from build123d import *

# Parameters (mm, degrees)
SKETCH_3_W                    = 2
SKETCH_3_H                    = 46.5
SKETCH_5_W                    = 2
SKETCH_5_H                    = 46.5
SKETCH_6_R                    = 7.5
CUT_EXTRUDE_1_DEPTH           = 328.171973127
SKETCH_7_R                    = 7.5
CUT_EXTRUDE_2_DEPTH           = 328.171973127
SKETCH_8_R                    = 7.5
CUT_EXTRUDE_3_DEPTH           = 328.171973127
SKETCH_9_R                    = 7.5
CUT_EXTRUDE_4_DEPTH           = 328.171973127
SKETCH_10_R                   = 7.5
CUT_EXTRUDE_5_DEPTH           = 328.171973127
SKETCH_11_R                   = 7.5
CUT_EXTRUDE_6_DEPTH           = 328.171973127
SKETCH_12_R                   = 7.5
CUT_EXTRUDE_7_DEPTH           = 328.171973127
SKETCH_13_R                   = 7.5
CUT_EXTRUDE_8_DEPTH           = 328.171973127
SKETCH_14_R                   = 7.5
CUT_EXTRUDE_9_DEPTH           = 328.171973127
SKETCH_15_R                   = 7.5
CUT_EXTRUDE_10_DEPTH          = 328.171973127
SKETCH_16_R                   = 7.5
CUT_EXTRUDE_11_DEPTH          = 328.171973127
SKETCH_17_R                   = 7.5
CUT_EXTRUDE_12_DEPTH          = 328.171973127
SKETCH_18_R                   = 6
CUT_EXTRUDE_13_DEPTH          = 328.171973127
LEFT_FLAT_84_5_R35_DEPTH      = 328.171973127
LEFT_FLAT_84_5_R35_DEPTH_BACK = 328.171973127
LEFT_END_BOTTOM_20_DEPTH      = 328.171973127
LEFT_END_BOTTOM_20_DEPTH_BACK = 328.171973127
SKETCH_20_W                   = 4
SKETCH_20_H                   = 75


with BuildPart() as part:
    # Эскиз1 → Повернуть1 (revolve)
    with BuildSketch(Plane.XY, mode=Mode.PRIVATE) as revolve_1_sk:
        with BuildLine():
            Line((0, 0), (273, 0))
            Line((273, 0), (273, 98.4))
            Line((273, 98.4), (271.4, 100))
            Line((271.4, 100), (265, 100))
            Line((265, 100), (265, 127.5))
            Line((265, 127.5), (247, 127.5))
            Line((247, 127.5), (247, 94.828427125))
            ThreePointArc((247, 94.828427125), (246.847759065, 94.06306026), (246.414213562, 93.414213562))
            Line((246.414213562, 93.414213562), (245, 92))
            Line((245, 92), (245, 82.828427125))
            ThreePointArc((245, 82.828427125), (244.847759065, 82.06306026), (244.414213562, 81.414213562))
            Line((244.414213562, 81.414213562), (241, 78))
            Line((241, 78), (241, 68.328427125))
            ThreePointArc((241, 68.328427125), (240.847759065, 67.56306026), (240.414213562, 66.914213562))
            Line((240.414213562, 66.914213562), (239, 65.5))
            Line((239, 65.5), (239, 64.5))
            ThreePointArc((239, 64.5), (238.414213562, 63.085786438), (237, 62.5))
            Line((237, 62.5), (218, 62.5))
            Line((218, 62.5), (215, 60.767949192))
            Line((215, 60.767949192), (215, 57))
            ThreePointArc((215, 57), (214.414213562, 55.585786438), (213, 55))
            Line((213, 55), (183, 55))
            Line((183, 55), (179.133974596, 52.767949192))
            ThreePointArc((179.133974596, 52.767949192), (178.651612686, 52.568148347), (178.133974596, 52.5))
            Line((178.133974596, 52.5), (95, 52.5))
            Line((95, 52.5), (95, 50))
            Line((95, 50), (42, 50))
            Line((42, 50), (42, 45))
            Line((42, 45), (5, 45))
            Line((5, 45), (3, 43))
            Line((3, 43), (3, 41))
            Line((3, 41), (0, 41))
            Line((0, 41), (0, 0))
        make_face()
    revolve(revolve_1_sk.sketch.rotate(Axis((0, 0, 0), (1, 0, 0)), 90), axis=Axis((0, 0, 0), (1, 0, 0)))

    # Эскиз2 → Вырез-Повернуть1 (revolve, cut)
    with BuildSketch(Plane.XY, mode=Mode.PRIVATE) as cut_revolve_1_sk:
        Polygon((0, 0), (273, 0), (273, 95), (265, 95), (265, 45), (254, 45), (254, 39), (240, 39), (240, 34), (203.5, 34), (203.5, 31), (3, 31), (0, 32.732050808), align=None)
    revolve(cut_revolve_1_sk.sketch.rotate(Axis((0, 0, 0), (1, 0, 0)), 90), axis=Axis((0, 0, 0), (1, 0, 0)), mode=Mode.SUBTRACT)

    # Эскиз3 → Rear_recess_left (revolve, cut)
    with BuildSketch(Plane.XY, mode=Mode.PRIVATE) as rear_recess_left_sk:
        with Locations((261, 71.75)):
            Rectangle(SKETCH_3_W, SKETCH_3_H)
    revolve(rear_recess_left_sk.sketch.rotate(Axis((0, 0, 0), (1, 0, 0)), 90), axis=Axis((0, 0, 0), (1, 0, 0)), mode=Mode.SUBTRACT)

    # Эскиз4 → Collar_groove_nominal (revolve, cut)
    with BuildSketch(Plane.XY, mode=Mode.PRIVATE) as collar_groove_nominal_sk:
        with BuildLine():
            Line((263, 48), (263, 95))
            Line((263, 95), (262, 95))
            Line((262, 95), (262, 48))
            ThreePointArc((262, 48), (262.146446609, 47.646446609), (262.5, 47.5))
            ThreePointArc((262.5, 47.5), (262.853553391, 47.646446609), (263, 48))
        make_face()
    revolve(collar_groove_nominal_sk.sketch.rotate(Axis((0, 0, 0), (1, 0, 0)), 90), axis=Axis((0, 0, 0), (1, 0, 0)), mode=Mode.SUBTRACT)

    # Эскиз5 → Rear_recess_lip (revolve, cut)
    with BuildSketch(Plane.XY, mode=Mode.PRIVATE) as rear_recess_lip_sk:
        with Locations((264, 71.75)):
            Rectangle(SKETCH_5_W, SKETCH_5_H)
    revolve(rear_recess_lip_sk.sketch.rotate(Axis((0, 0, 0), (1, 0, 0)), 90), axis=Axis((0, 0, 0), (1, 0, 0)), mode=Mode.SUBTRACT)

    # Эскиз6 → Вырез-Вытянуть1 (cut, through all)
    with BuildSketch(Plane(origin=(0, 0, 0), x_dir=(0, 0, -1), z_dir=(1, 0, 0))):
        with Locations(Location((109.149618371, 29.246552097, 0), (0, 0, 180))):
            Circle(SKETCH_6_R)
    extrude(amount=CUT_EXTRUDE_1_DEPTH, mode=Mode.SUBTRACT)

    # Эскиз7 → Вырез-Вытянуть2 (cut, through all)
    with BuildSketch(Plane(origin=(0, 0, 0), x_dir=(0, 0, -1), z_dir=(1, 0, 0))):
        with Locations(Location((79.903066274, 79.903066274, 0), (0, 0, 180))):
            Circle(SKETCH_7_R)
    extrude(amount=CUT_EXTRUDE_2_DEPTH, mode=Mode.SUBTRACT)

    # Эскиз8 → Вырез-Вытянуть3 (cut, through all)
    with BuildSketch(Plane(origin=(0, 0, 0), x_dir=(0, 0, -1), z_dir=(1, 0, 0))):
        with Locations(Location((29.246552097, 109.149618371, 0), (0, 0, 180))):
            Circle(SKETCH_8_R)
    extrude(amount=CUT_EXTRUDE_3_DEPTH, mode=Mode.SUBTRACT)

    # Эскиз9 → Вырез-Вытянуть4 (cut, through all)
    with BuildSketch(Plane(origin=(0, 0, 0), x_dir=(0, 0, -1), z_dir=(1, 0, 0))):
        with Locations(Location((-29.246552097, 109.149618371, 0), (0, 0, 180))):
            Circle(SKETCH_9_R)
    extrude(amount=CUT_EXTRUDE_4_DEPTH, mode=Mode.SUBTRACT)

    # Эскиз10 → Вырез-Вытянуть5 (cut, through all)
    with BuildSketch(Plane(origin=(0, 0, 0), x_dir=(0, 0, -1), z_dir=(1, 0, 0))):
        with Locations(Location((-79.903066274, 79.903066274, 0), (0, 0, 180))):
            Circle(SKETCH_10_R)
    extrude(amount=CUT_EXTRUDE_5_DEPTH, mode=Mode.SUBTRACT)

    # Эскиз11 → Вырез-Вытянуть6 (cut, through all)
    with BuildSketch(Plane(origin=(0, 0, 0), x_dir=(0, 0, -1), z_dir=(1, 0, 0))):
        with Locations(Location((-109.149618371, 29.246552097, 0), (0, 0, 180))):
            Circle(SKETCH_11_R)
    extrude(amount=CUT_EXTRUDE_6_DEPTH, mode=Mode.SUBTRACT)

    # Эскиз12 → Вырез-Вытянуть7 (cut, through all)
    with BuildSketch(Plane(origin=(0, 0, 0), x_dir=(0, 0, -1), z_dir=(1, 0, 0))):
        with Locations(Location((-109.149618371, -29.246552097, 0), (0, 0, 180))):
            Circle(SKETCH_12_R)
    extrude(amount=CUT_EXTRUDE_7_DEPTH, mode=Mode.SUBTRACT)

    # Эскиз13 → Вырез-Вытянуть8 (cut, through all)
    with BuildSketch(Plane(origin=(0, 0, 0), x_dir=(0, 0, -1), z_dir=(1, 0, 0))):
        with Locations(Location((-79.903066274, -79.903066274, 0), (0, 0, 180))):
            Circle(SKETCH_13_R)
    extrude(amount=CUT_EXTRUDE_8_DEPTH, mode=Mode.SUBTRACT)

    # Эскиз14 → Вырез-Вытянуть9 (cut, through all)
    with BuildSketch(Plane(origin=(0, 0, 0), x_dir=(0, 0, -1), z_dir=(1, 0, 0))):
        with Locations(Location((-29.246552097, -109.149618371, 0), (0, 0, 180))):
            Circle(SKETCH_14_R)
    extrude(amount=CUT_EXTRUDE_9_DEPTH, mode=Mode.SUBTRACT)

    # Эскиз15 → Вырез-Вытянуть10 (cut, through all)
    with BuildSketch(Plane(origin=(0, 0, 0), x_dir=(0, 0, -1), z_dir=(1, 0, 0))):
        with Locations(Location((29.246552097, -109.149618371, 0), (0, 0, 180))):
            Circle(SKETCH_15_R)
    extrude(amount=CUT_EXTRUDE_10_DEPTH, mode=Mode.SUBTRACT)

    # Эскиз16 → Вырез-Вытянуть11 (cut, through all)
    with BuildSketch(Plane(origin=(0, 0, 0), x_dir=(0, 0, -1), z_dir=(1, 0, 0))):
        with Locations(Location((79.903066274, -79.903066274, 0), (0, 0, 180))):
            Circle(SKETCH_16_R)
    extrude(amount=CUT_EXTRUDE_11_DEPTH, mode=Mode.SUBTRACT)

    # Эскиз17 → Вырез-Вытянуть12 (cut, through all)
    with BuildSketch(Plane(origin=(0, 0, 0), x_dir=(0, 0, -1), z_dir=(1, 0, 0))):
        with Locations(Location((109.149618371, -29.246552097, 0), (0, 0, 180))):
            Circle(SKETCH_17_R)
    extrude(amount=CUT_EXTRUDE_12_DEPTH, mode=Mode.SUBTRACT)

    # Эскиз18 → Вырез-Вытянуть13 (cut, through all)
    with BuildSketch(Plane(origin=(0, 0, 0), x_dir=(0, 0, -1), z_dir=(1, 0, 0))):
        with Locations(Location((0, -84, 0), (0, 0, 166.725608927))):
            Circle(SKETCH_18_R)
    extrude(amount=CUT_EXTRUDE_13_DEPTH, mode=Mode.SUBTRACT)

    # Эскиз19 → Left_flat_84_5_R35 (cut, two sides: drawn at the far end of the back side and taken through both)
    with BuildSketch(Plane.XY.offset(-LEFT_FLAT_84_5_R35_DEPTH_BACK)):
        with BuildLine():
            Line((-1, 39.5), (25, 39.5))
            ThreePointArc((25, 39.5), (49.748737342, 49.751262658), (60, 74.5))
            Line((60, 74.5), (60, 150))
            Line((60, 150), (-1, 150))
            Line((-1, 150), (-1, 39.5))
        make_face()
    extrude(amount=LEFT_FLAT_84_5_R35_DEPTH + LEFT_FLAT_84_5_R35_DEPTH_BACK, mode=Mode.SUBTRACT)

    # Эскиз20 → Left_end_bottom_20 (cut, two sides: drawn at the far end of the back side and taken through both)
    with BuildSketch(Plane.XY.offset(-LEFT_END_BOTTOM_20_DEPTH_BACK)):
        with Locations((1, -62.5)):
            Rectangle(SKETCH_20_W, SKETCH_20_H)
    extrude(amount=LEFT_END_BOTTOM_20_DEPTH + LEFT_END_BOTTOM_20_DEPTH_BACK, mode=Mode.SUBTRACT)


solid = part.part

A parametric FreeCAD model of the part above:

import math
import FreeCAD as App
import Part
import Sketcher
from FreeCAD import Vector
Q = App.Units.Quantity

doc = App.newDocument("Part")
body = doc.addObject("PartDesign::Body", "Body")

sketch1 = doc.addObject("Sketcher::SketchObject", "Sketch")
body.addObject(sketch1)
sketch1.AttachmentSupport = (doc.XY_Plane, [""])
sketch1.MapMode = "FlatFace"
sketch1.addGeometry(Part.LineSegment(Vector(0, 0, 0), Vector(273, 0, 0)), False)
sketch1.addGeometry(Part.LineSegment(Vector(273, 0, 0), Vector(273, 98.4, 0)), False)
sketch1.addGeometry(Part.LineSegment(Vector(273, 98.4, 0), Vector(271.4, 100, 0)), False)
sketch1.addGeometry(Part.LineSegment(Vector(271.4, 100, 0), Vector(265, 100, 0)), False)
sketch1.addGeometry(Part.LineSegment(Vector(265, 100, 0), Vector(265, 127.5, 0)), False)
sketch1.addGeometry(Part.LineSegment(Vector(265, 127.5, 0), Vector(247, 127.5, 0)), False)
sketch1.addGeometry(Part.LineSegment(Vector(247, 127.5, 0), Vector(247, 94.8, 0)), False)
sketch1.addGeometry(Part.ArcOfCircle(Part.Circle(Vector(245, 94.8, 0), Vector(0, 0, 1), 2), math.radians(-45), math.radians(0)), False)
sketch1.addGeometry(Part.LineSegment(Vector(246.4, 93.4, 0), Vector(245, 92, 0)), False)
sketch1.addGeometry(Part.LineSegment(Vector(245, 92, 0), Vector(245, 82.8, 0)), False)
sketch1.addGeometry(Part.ArcOfCircle(Part.Circle(Vector(243, 82.8, 0), Vector(0, 0, 1), 2), math.radians(-45), math.radians(0)), False)
sketch1.addGeometry(Part.LineSegment(Vector(244.4, 81.4, 0), Vector(241, 78, 0)), False)
sketch1.addGeometry(Part.LineSegment(Vector(241, 78, 0), Vector(241, 68.3, 0)), False)
sketch1.addGeometry(Part.ArcOfCircle(Part.Circle(Vector(239, 68.3, 0), Vector(0, 0, 1), 2), math.radians(-45), math.radians(0)), False)
sketch1.addGeometry(Part.LineSegment(Vector(240.4, 66.9, 0), Vector(239, 65.5, 0)), False)
sketch1.addGeometry(Part.LineSegment(Vector(239, 65.5, 0), Vector(239, 64.5, 0)), False)
sketch1.addGeometry(Part.ArcOfCircle(Part.Circle(Vector(237, 64.5, 0), Vector(0, 0, 1), 2), math.radians(-90), math.radians(0)), False)
sketch1.addGeometry(Part.LineSegment(Vector(237, 62.5, 0), Vector(218, 62.5, 0)), False)
sketch1.addGeometry(Part.LineSegment(Vector(218, 62.5, 0), Vector(215, 60.8, 0)), False)
sketch1.addGeometry(Part.LineSegment(Vector(215, 60.8, 0), Vector(215, 57, 0)), False)
sketch1.addGeometry(Part.ArcOfCircle(Part.Circle(Vector(213, 57, 0), Vector(0, 0, 1), 2), math.radians(-90), math.radians(0)), False)
sketch1.addGeometry(Part.LineSegment(Vector(213, 55, 0), Vector(183, 55, 0)), False)
sketch1.addGeometry(Part.LineSegment(Vector(183, 55, 0), Vector(179.1, 52.8, 0)), False)
sketch1.addGeometry(Part.ArcOfCircle(Part.Circle(Vector(178.1, 54.5, 0), Vector(0, 0, 1), 2), math.radians(-90), math.radians(-60)), False)
sketch1.addGeometry(Part.LineSegment(Vector(178.1, 52.5, 0), Vector(95, 52.5, 0)), False)
sketch1.addGeometry(Part.LineSegment(Vector(95, 52.5, 0), Vector(95, 50, 0)), False)
sketch1.addGeometry(Part.LineSegment(Vector(95, 50, 0), Vector(42, 50, 0)), False)
sketch1.addGeometry(Part.LineSegment(Vector(42, 50, 0), Vector(42, 45, 0)), False)
sketch1.addGeometry(Part.LineSegment(Vector(42, 45, 0), Vector(5, 45, 0)), False)
sketch1.addGeometry(Part.LineSegment(Vector(5, 45, 0), Vector(3, 43, 0)), False)
sketch1.addGeometry(Part.LineSegment(Vector(3, 43, 0), Vector(3, 41, 0)), False)
sketch1.addGeometry(Part.LineSegment(Vector(3, 41, 0), Vector(0, 41, 0)), False)
sketch1.addGeometry(Part.LineSegment(Vector(0, 41, 0), Vector(0, 0, 0)), False)
sketch1.addConstraint(Sketcher.Constraint("Coincident", 0, 2, 1, 1))
sketch1.addConstraint(Sketcher.Constraint("Coincident", 1, 2, 2, 1))
sketch1.addConstraint(Sketcher.Constraint("Coincident", 2, 2, 3, 1))
sketch1.addConstraint(Sketcher.Constraint("Coincident", 3, 2, 4, 1))
sketch1.addConstraint(Sketcher.Constraint("Coincident", 4, 2, 5, 1))
sketch1.addConstraint(Sketcher.Constraint("Coincident", 5, 2, 6, 1))
sketch1.addConstraint(Sketcher.Constraint("Tangent", 6, 2, 7, 2))
sketch1.addConstraint(Sketcher.Constraint("Tangent", 7, 1, 8, 1))
sketch1.addConstraint(Sketcher.Constraint("Coincident", 8, 2, 9, 1))
sketch1.addConstraint(Sketcher.Constraint("Tangent", 9, 2, 10, 2))
sketch1.addConstraint(Sketcher.Constraint("Tangent", 10, 1, 11, 1))
sketch1.addConstraint(Sketcher.Constraint("Coincident", 11, 2, 12, 1))
sketch1.addConstraint(Sketcher.Constraint("Tangent", 12, 2, 13, 2))
sketch1.addConstraint(Sketcher.Constraint("Tangent", 13, 1, 14, 1))
sketch1.addConstraint(Sketcher.Constraint("Coincident", 14, 2, 15, 1))
sketch1.addConstraint(Sketcher.Constraint("Tangent", 15, 2, 16, 2))
sketch1.addConstraint(Sketcher.Constraint("Tangent", 16, 1, 17, 1))
sketch1.addConstraint(Sketcher.Constraint("Coincident", 17, 2, 18, 1))
sketch1.addConstraint(Sketcher.Constraint("Coincident", 18, 2, 19, 1))
sketch1.addConstraint(Sketcher.Constraint("Tangent", 19, 2, 20, 2))
sketch1.addConstraint(Sketcher.Constraint("Tangent", 20, 1, 21, 1))
sketch1.addConstraint(Sketcher.Constraint("Coincident", 21, 2, 22, 1))
sketch1.addConstraint(Sketcher.Constraint("Tangent", 22, 2, 23, 2))
sketch1.addConstraint(Sketcher.Constraint("Tangent", 23, 1, 24, 1))
sketch1.addConstraint(Sketcher.Constraint("Coincident", 24, 2, 25, 1))
sketch1.addConstraint(Sketcher.Constraint("Coincident", 25, 2, 26, 1))
sketch1.addConstraint(Sketcher.Constraint("Coincident", 26, 2, 27, 1))
sketch1.addConstraint(Sketcher.Constraint("Coincident", 27, 2, 28, 1))
sketch1.addConstraint(Sketcher.Constraint("Coincident", 28, 2, 29, 1))
sketch1.addConstraint(Sketcher.Constraint("Coincident", 29, 2, 30, 1))
sketch1.addConstraint(Sketcher.Constraint("Coincident", 30, 2, 31, 1))
sketch1.addConstraint(Sketcher.Constraint("Coincident", 31, 2, 32, 1))
sketch1.addConstraint(Sketcher.Constraint("Coincident", 32, 2, 0, 1))
sketch1.addConstraint(Sketcher.Constraint("Horizontal", 0))
sketch1.addConstraint(Sketcher.Constraint("Vertical", 1))
sketch1.addConstraint(Sketcher.Constraint("Horizontal", 3))
sketch1.addConstraint(Sketcher.Constraint("Vertical", 4))
sketch1.addConstraint(Sketcher.Constraint("Horizontal", 5))
sketch1.addConstraint(Sketcher.Constraint("Vertical", 6))
sketch1.addConstraint(Sketcher.Constraint("Vertical", 9))
sketch1.addConstraint(Sketcher.Constraint("Vertical", 12))
sketch1.addConstraint(Sketcher.Constraint("Vertical", 15))
sketch1.addConstraint(Sketcher.Constraint("Horizontal", 17))
sketch1.addConstraint(Sketcher.Constraint("Vertical", 19))
sketch1.addConstraint(Sketcher.Constraint("Horizontal", 21))
sketch1.addConstraint(Sketcher.Constraint("Horizontal", 24))
sketch1.addConstraint(Sketcher.Constraint("Vertical", 25))
sketch1.addConstraint(Sketcher.Constraint("Horizontal", 26))
sketch1.addConstraint(Sketcher.Constraint("Vertical", 27))
sketch1.addConstraint(Sketcher.Constraint("Horizontal", 28))
sketch1.addConstraint(Sketcher.Constraint("Vertical", 30))
sketch1.addConstraint(Sketcher.Constraint("Horizontal", 31))
sketch1.addConstraint(Sketcher.Constraint("Vertical", 32))
sketch1.addConstraint(Sketcher.Constraint("Coincident", 32, 2, -1, 1))
sketch1.addConstraint(Sketcher.Constraint("Equal", 7, 10))
sketch1.addConstraint(Sketcher.Constraint("Equal", 10, 13))
sketch1.addConstraint(Sketcher.Constraint("Equal", 13, 16))
sketch1.addConstraint(Sketcher.Constraint("Equal", 16, 20))
sketch1.addConstraint(Sketcher.Constraint("Equal", 20, 23))
sketch1.addConstraint(Sketcher.Constraint("Perpendicular", 2, 8))
sketch1.addConstraint(Sketcher.Constraint("Parallel", 8, 11))
sketch1.addConstraint(Sketcher.Constraint("Parallel", 11, 14))
sketch1.addConstraint(Sketcher.Constraint("Parallel", 18, 22))
sketch1.addConstraint(Sketcher.Constraint("Parallel", 14, 29))
sketch1.addConstraint(Sketcher.Constraint("Vertical", 7, 3, 8, 2))
sketch1.addConstraint(Sketcher.Constraint("Vertical", 13, 3, 14, 2))
sketch1.addConstraint(Sketcher.Constraint("Radius", 7, 2.0))
sketch1.addConstraint(Sketcher.Constraint("DistanceX", 0, 1, 0, 2, 273.0))
sketch1.addConstraint(Sketcher.Constraint("DistanceX", 5, 2, 5, 1, 18.0))
sketch1.addConstraint(Sketcher.Constraint("DistanceX", 17, 2, 17, 1, 19.0))
sketch1.addConstraint(Sketcher.Constraint("DistanceX", 21, 2, 21, 1, 30.0))
sketch1.addConstraint(Sketcher.Constraint("DistanceX", 26, 2, 26, 1, 53.0))
sketch1.addConstraint(Sketcher.Constraint("DistanceX", 28, 2, 28, 1, 37.0))
sketch1.addConstraint(Sketcher.Constraint("DistanceX", 31, 2, 31, 1, 3.0))
sketch1.addConstraint(Sketcher.Constraint("DistanceY", 15, 2, 15, 1, 1.0))
sketch1.addConstraint(Sketcher.Constraint("DistanceY", 27, 2, 27, 1, 5.0))
sketch1.addConstraint(Sketcher.Constraint("DistanceY", 30, 2, 30, 1, 2.0))
sketch1.addConstraint(Sketcher.Constraint("DistanceY", 32, 2, 32, 1, 41.0))
sketch1.addConstraint(Sketcher.Constraint("Angle", 2, Q("135 deg")))
sketch1.addConstraint(Sketcher.Constraint("Angle", 18, Q("-150 deg")))
sketch1.addConstraint(Sketcher.Constraint("DistanceX", 3, 2, 3, 1, 6.4))
sketch1.addConstraint(Sketcher.Constraint("DistanceY", 1, 1, 1, 2, 98.4))
sketch1.addConstraint(Sketcher.Constraint("DistanceY", 4, 1, 4, 2, 27.5))
sketch1.addConstraint(Sketcher.Constraint("DistanceY", 25, 2, 25, 1, 2.5))
sketch1.addConstraint(Sketcher.Constraint("DistanceX", -1, 1, 7, 3, 245.0))
sketch1.addConstraint(Sketcher.Constraint("DistanceX", -1, 1, 13, 3, 239.0))
sketch1.addConstraint(Sketcher.Constraint("DistanceX", -1, 1, 20, 3, 213.0))
sketch1.addConstraint(Sketcher.Constraint("DistanceY", -1, 1, 20, 3, 57.0))
sketch1.addConstraint(Sketcher.Constraint("DistanceY", -1, 1, 8, 2, 92.0))
sketch1.addConstraint(Sketcher.Constraint("DistanceY", -1, 1, 11, 2, 78.0))
sketch1.addConstraint(Sketcher.Constraint("DistanceX", -1, 1, 24, 2, 95.0))
sketch1.addConstraint(Sketcher.Constraint("DistanceY", 23, 3, 16, 3, 10.0))
revolution = doc.addObject("PartDesign::Revolution", "Revolution")
body.addObject(revolution)
revolution.Profile = sketch1
revolution.ReferenceAxis = (sketch1, ["H_Axis"])
revolution.Angle = 360

sketch2 = doc.addObject("Sketcher::SketchObject", "Sketch001")
body.addObject(sketch2)
sketch2.AttachmentSupport = (doc.XY_Plane, [""])
sketch2.MapMode = "FlatFace"
sketch2.addGeometry(Part.LineSegment(Vector(0, 0, 0), Vector(273, 0, 0)), False)
sketch2.addGeometry(Part.LineSegment(Vector(273, 0, 0), Vector(273, 95, 0)), False)
sketch2.addGeometry(Part.LineSegment(Vector(273, 95, 0), Vector(265, 95, 0)), False)
sketch2.addGeometry(Part.LineSegment(Vector(265, 95, 0), Vector(265, 45, 0)), False)
sketch2.addGeometry(Part.LineSegment(Vector(265, 45, 0), Vector(254, 45, 0)), False)
sketch2.addGeometry(Part.LineSegment(Vector(254, 45, 0), Vector(254, 39, 0)), False)
sketch2.addGeometry(Part.LineSegment(Vector(254, 39, 0), Vector(240, 39, 0)), False)
sketch2.addGeometry(Part.LineSegment(Vector(240, 39, 0), Vector(240, 34, 0)), False)
sketch2.addGeometry(Part.LineSegment(Vector(240, 34, 0), Vector(203.5, 34, 0)), False)
sketch2.addGeometry(Part.LineSegment(Vector(203.5, 34, 0), Vector(203.5, 31, 0)), False)
sketch2.addGeometry(Part.LineSegment(Vector(203.5, 31, 0), Vector(3, 31, 0)), False)
sketch2.addGeometry(Part.LineSegment(Vector(3, 31, 0), Vector(0, 32.7, 0)), False)
sketch2.addGeometry(Part.LineSegment(Vector(0, 32.7, 0), Vector(0, 0, 0)), False)
sketch2.addConstraint(Sketcher.Constraint("Coincident", 0, 2, 1, 1))
sketch2.addConstraint(Sketcher.Constraint("Coincident", 1, 2, 2, 1))
sketch2.addConstraint(Sketcher.Constraint("Coincident", 2, 2, 3, 1))
sketch2.addConstraint(Sketcher.Constraint("Coincident", 3, 2, 4, 1))
sketch2.addConstraint(Sketcher.Constraint("Coincident", 4, 2, 5, 1))
sketch2.addConstraint(Sketcher.Constraint("Coincident", 5, 2, 6, 1))
sketch2.addConstraint(Sketcher.Constraint("Coincident", 6, 2, 7, 1))
sketch2.addConstraint(Sketcher.Constraint("Coincident", 7, 2, 8, 1))
sketch2.addConstraint(Sketcher.Constraint("Coincident", 8, 2, 9, 1))
sketch2.addConstraint(Sketcher.Constraint("Coincident", 9, 2, 10, 1))
sketch2.addConstraint(Sketcher.Constraint("Coincident", 10, 2, 11, 1))
sketch2.addConstraint(Sketcher.Constraint("Coincident", 11, 2, 12, 1))
sketch2.addConstraint(Sketcher.Constraint("Coincident", 12, 2, 0, 1))
sketch2.addConstraint(Sketcher.Constraint("Horizontal", 0))
sketch2.addConstraint(Sketcher.Constraint("Vertical", 1))
sketch2.addConstraint(Sketcher.Constraint("Horizontal", 2))
sketch2.addConstraint(Sketcher.Constraint("Vertical", 3))
sketch2.addConstraint(Sketcher.Constraint("Horizontal", 4))
sketch2.addConstraint(Sketcher.Constraint("Vertical", 5))
sketch2.addConstraint(Sketcher.Constraint("Horizontal", 6))
sketch2.addConstraint(Sketcher.Constraint("Vertical", 7))
sketch2.addConstraint(Sketcher.Constraint("Horizontal", 8))
sketch2.addConstraint(Sketcher.Constraint("Vertical", 9))
sketch2.addConstraint(Sketcher.Constraint("Horizontal", 10))
sketch2.addConstraint(Sketcher.Constraint("Vertical", 12))
sketch2.addConstraint(Sketcher.Constraint("Coincident", 12, 2, -1, 1))
sketch2.addConstraint(Sketcher.Constraint("DistanceX", 0, 1, 0, 2, 273.0))
sketch2.addConstraint(Sketcher.Constraint("DistanceX", 2, 2, 2, 1, 8.0))
sketch2.addConstraint(Sketcher.Constraint("DistanceX", 4, 2, 4, 1, 11.0))
sketch2.addConstraint(Sketcher.Constraint("DistanceX", 6, 2, 6, 1, 14.0))
sketch2.addConstraint(Sketcher.Constraint("DistanceY", 1, 1, 1, 2, 95.0))
sketch2.addConstraint(Sketcher.Constraint("DistanceY", 3, 2, 3, 1, 50.0))
sketch2.addConstraint(Sketcher.Constraint("DistanceY", 5, 2, 5, 1, 6.0))
sketch2.addConstraint(Sketcher.Constraint("DistanceY", 7, 2, 7, 1, 5.0))
sketch2.addConstraint(Sketcher.Constraint("DistanceY", 9, 2, 9, 1, 3.0))
sketch2.addConstraint(Sketcher.Constraint("Angle", 11, Q("150 deg")))
sketch2.addConstraint(Sketcher.Constraint("DistanceX", 8, 2, 8, 1, 36.5))
sketch2.addConstraint(Sketcher.Constraint("DistanceX", 10, 2, 10, 1, 200.5))
groove = doc.addObject("PartDesign::Groove", "Groove")
body.addObject(groove)
groove.Profile = sketch2
groove.ReferenceAxis = (sketch2, ["H_Axis"])
groove.Angle = 360

sketch3 = doc.addObject("Sketcher::SketchObject", "Sketch002")
body.addObject(sketch3)
sketch3.AttachmentSupport = (doc.XY_Plane, [""])
sketch3.MapMode = "FlatFace"
sketch3.addGeometry(Part.LineSegment(Vector(260, 95, 0), Vector(260, 48.5, 0)), False)
sketch3.addGeometry(Part.LineSegment(Vector(260, 48.5, 0), Vector(262, 48.5, 0)), False)
sketch3.addGeometry(Part.LineSegment(Vector(262, 48.5, 0), Vector(262, 95, 0)), False)
sketch3.addGeometry(Part.LineSegment(Vector(262, 95, 0), Vector(260, 95, 0)), False)
sketch3.addConstraint(Sketcher.Constraint("Coincident", 0, 2, 1, 1))
sketch3.addConstraint(Sketcher.Constraint("Coincident", 1, 2, 2, 1))
sketch3.addConstraint(Sketcher.Constraint("Coincident", 2, 2, 3, 1))
sketch3.addConstraint(Sketcher.Constraint("Coincident", 3, 2, 0, 1))
sketch3.addConstraint(Sketcher.Constraint("Vertical", 0))
sketch3.addConstraint(Sketcher.Constraint("Horizontal", 1))
sketch3.addConstraint(Sketcher.Constraint("Vertical", 2))
sketch3.addConstraint(Sketcher.Constraint("Horizontal", 3))
sketch3.addConstraint(Sketcher.Constraint("DistanceX", 1, 1, 1, 2, 2.0))
sketch3.addConstraint(Sketcher.Constraint("DistanceY", 0, 2, 0, 1, 46.5))
sketch3.addConstraint(Sketcher.Constraint("DistanceX", -1, 1, 0, 2, 260.0))
sketch3.addConstraint(Sketcher.Constraint("DistanceY", -1, 1, 2, 2, 95.0))
groove2 = doc.addObject("PartDesign::Groove", "Groove001")
body.addObject(groove2)
groove2.Profile = sketch3
groove2.ReferenceAxis = (sketch3, ["H_Axis"])
groove2.Angle = 360

sketch4 = doc.addObject("Sketcher::SketchObject", "Sketch003")
body.addObject(sketch4)
sketch4.AttachmentSupport = (doc.XY_Plane, [""])
sketch4.MapMode = "FlatFace"
sketch4.addGeometry(Part.LineSegment(Vector(263, 48, 0), Vector(263, 95, 0)), False)
sketch4.addGeometry(Part.LineSegment(Vector(263, 95, 0), Vector(262, 95, 0)), False)
sketch4.addGeometry(Part.LineSegment(Vector(262, 95, 0), Vector(262, 48, 0)), False)
sketch4.addGeometry(Part.ArcOfCircle(Part.Circle(Vector(262.5, 48, 0), Vector(0, 0, 1), 0.5), math.radians(180), math.radians(270)), False)
sketch4.addGeometry(Part.ArcOfCircle(Part.Circle(Vector(262.5, 48, 0), Vector(0, 0, 1), 0.5), math.radians(-90), math.radians(0)), False)
sketch4.addConstraint(Sketcher.Constraint("Coincident", 0, 2, 1, 1))
sketch4.addConstraint(Sketcher.Constraint("Coincident", 1, 2, 2, 1))
sketch4.addConstraint(Sketcher.Constraint("Tangent", 2, 2, 3, 1))
sketch4.addConstraint(Sketcher.Constraint("Tangent", 3, 2, 4, 1))
sketch4.addConstraint(Sketcher.Constraint("Tangent", 4, 2, 0, 1))
sketch4.addConstraint(Sketcher.Constraint("Vertical", 0))
sketch4.addConstraint(Sketcher.Constraint("Horizontal", 1))
sketch4.addConstraint(Sketcher.Constraint("Vertical", 2))
sketch4.addConstraint(Sketcher.Constraint("Equal", 3, 4))
sketch4.addConstraint(Sketcher.Constraint("Vertical", 4, 3, 3, 2))
sketch4.addConstraint(Sketcher.Constraint("Radius", 3, 0.5))
sketch4.addConstraint(Sketcher.Constraint("DistanceY", 0, 1, 0, 2, 47.0))
sketch4.addConstraint(Sketcher.Constraint("DistanceY", -1, 1, 3, 3, 48.0))
sketch4.addConstraint(Sketcher.Constraint("DistanceX", -1, 1, 0, 2, 263.0))
groove3 = doc.addObject("PartDesign::Groove", "Groove002")
body.addObject(groove3)
groove3.Profile = sketch4
groove3.ReferenceAxis = (sketch4, ["H_Axis"])
groove3.Angle = 360

sketch5 = doc.addObject("Sketcher::SketchObject", "Sketch004")
body.addObject(sketch5)
sketch5.AttachmentSupport = (doc.XY_Plane, [""])
sketch5.MapMode = "FlatFace"
sketch5.addGeometry(Part.LineSegment(Vector(263, 95, 0), Vector(263, 48.5, 0)), False)
sketch5.addGeometry(Part.LineSegment(Vector(263, 48.5, 0), Vector(265, 48.5, 0)), False)
sketch5.addGeometry(Part.LineSegment(Vector(265, 48.5, 0), Vector(265, 95, 0)), False)
sketch5.addGeometry(Part.LineSegment(Vector(265, 95, 0), Vector(263, 95, 0)), False)
sketch5.addConstraint(Sketcher.Constraint("Coincident", 0, 2, 1, 1))
sketch5.addConstraint(Sketcher.Constraint("Coincident", 1, 2, 2, 1))
sketch5.addConstraint(Sketcher.Constraint("Coincident", 2, 2, 3, 1))
sketch5.addConstraint(Sketcher.Constraint("Coincident", 3, 2, 0, 1))
sketch5.addConstraint(Sketcher.Constraint("Vertical", 0))
sketch5.addConstraint(Sketcher.Constraint("Horizontal", 1))
sketch5.addConstraint(Sketcher.Constraint("Vertical", 2))
sketch5.addConstraint(Sketcher.Constraint("Horizontal", 3))
sketch5.addConstraint(Sketcher.Constraint("DistanceX", 1, 1, 1, 2, 2.0))
sketch5.addConstraint(Sketcher.Constraint("DistanceY", 0, 2, 0, 1, 46.5))
sketch5.addConstraint(Sketcher.Constraint("DistanceX", -1, 1, 0, 2, 263.0))
sketch5.addConstraint(Sketcher.Constraint("DistanceY", -1, 1, 2, 2, 95.0))
groove4 = doc.addObject("PartDesign::Groove", "Groove003")
body.addObject(groove4)
groove4.Profile = sketch5
groove4.ReferenceAxis = (sketch5, ["H_Axis"])
groove4.Angle = 360

sketch6 = doc.addObject("Sketcher::SketchObject", "Sketch005")
body.addObject(sketch6)
sketch6.AttachmentSupport = (doc.YZ_Plane, [""])
sketch6.MapMode = "FlatFace"
sketch6.addGeometry(Part.Circle(Vector(29, -109, 0), Vector(0, 0, 1), 8), False)
sketch6.addConstraint(Sketcher.Constraint("Diameter", 0, 15.0))
sketch6.addConstraint(Sketcher.Constraint("DistanceY", 0, 3, -1, 1, 109.149618))
sketch6.addConstraint(Sketcher.Constraint("DistanceX", -1, 1, 0, 3, 29.246552))
pocket1 = doc.addObject("PartDesign::Pocket", "Pocket")
body.addObject(pocket1)
pocket1.Profile = sketch6
pocket1.Type = "ThroughAll"
pocket1.Reversed = True

sketch7 = doc.addObject("Sketcher::SketchObject", "Sketch006")
body.addObject(sketch7)
sketch7.AttachmentSupport = (doc.YZ_Plane, [""])
sketch7.MapMode = "FlatFace"
sketch7.addGeometry(Part.Circle(Vector(80, -80, 0), Vector(0, 0, 1), 8), False)
sketch7.addConstraint(Sketcher.Constraint("Diameter", 0, 15.0))
sketch7.addConstraint(Sketcher.Constraint("DistanceX", -1, 1, 0, 3, 79.903066))
sketch7.addConstraint(Sketcher.Constraint("DistanceY", 0, 3, -1, 1, 79.903066))
pocket2 = doc.addObject("PartDesign::Pocket", "Pocket001")
body.addObject(pocket2)
pocket2.Profile = sketch7
pocket2.Type = "ThroughAll"
pocket2.Reversed = True

sketch8 = doc.addObject("Sketcher::SketchObject", "Sketch007")
body.addObject(sketch8)
sketch8.AttachmentSupport = (doc.YZ_Plane, [""])
sketch8.MapMode = "FlatFace"
sketch8.addGeometry(Part.Circle(Vector(109, -29, 0), Vector(0, 0, 1), 8), False)
sketch8.addConstraint(Sketcher.Constraint("Diameter", 0, 15.0))
sketch8.addConstraint(Sketcher.Constraint("DistanceX", -1, 1, 0, 3, 109.149618))
sketch8.addConstraint(Sketcher.Constraint("DistanceY", 0, 3, -1, 1, 29.246552))
pocket3 = doc.addObject("PartDesign::Pocket", "Pocket002")
body.addObject(pocket3)
pocket3.Profile = sketch8
pocket3.Type = "ThroughAll"
pocket3.Reversed = True

sketch9 = doc.addObject("Sketcher::SketchObject", "Sketch008")
body.addObject(sketch9)
sketch9.AttachmentSupport = (doc.YZ_Plane, [""])
sketch9.MapMode = "FlatFace"
sketch9.addGeometry(Part.Circle(Vector(109, 29, 0), Vector(0, 0, 1), 8), False)
sketch9.addConstraint(Sketcher.Constraint("Diameter", 0, 15.0))
sketch9.addConstraint(Sketcher.Constraint("DistanceX", -1, 1, 0, 3, 109.149618))
sketch9.addConstraint(Sketcher.Constraint("DistanceY", -1, 1, 0, 3, 29.246552))
pocket4 = doc.addObject("PartDesign::Pocket", "Pocket003")
body.addObject(pocket4)
pocket4.Profile = sketch9
pocket4.Type = "ThroughAll"
pocket4.Reversed = True

sketch10 = doc.addObject("Sketcher::SketchObject", "Sketch009")
body.addObject(sketch10)
sketch10.AttachmentSupport = (doc.YZ_Plane, [""])
sketch10.MapMode = "FlatFace"
sketch10.addGeometry(Part.Circle(Vector(80, 80, 0), Vector(0, 0, 1), 8), False)
sketch10.addConstraint(Sketcher.Constraint("Diameter", 0, 15.0))
sketch10.addConstraint(Sketcher.Constraint("DistanceX", -1, 1, 0, 3, 79.903066))
sketch10.addConstraint(Sketcher.Constraint("DistanceY", -1, 1, 0, 3, 79.903066))
pocket5 = doc.addObject("PartDesign::Pocket", "Pocket004")
body.addObject(pocket5)
pocket5.Profile = sketch10
pocket5.Type = "ThroughAll"
pocket5.Reversed = True

sketch11 = doc.addObject("Sketcher::SketchObject", "Sketch010")
body.addObject(sketch11)
sketch11.AttachmentSupport = (doc.YZ_Plane, [""])
sketch11.MapMode = "FlatFace"
sketch11.addGeometry(Part.Circle(Vector(29, 109, 0), Vector(0, 0, 1), 8), False)
sketch11.addConstraint(Sketcher.Constraint("Diameter", 0, 15.0))
sketch11.addConstraint(Sketcher.Constraint("DistanceY", -1, 1, 0, 3, 109.149618))
sketch11.addConstraint(Sketcher.Constraint("DistanceX", -1, 1, 0, 3, 29.246552))
pocket6 = doc.addObject("PartDesign::Pocket", "Pocket005")
body.addObject(pocket6)
pocket6.Profile = sketch11
pocket6.Type = "ThroughAll"
pocket6.Reversed = True

sketch12 = doc.addObject("Sketcher::SketchObject", "Sketch011")
body.addObject(sketch12)
sketch12.AttachmentSupport = (doc.YZ_Plane, [""])
sketch12.MapMode = "FlatFace"
sketch12.addGeometry(Part.Circle(Vector(-29, 109, 0), Vector(0, 0, 1), 8), False)
sketch12.addConstraint(Sketcher.Constraint("Diameter", 0, 15.0))
sketch12.addConstraint(Sketcher.Constraint("DistanceY", -1, 1, 0, 3, 109.149618))
sketch12.addConstraint(Sketcher.Constraint("DistanceX", 0, 3, -1, 1, 29.246552))
pocket7 = doc.addObject("PartDesign::Pocket", "Pocket006")
body.addObject(pocket7)
pocket7.Profile = sketch12
pocket7.Type = "ThroughAll"
pocket7.Reversed = True

sketch13 = doc.addObject("Sketcher::SketchObject", "Sketch012")
body.addObject(sketch13)
sketch13.AttachmentSupport = (doc.YZ_Plane, [""])
sketch13.MapMode = "FlatFace"
sketch13.addGeometry(Part.Circle(Vector(-80, 80, 0), Vector(0, 0, 1), 8), False)
sketch13.addConstraint(Sketcher.Constraint("Diameter", 0, 15.0))
sketch13.addConstraint(Sketcher.Constraint("DistanceX", 0, 3, -1, 1, 79.903066))
sketch13.addConstraint(Sketcher.Constraint("DistanceY", -1, 1, 0, 3, 79.903066))
pocket8 = doc.addObject("PartDesign::Pocket", "Pocket007")
body.addObject(pocket8)
pocket8.Profile = sketch13
pocket8.Type = "ThroughAll"
pocket8.Reversed = True

sketch14 = doc.addObject("Sketcher::SketchObject", "Sketch013")
body.addObject(sketch14)
sketch14.AttachmentSupport = (doc.YZ_Plane, [""])
sketch14.MapMode = "FlatFace"
sketch14.addGeometry(Part.Circle(Vector(-109, 29, 0), Vector(0, 0, 1), 8), False)
sketch14.addConstraint(Sketcher.Constraint("Diameter", 0, 15.0))
sketch14.addConstraint(Sketcher.Constraint("DistanceX", 0, 3, -1, 1, 109.149618))
sketch14.addConstraint(Sketcher.Constraint("DistanceY", -1, 1, 0, 3, 29.246552))
pocket9 = doc.addObject("PartDesign::Pocket", "Pocket008")
body.addObject(pocket9)
pocket9.Profile = sketch14
pocket9.Type = "ThroughAll"
pocket9.Reversed = True

sketch15 = doc.addObject("Sketcher::SketchObject", "Sketch014")
body.addObject(sketch15)
sketch15.AttachmentSupport = (doc.YZ_Plane, [""])
sketch15.MapMode = "FlatFace"
sketch15.addGeometry(Part.Circle(Vector(-109, -29, 0), Vector(0, 0, 1), 8), False)
sketch15.addConstraint(Sketcher.Constraint("Diameter", 0, 15.0))
sketch15.addConstraint(Sketcher.Constraint("DistanceX", 0, 3, -1, 1, 109.149618))
sketch15.addConstraint(Sketcher.Constraint("DistanceY", 0, 3, -1, 1, 29.246552))
pocket10 = doc.addObject("PartDesign::Pocket", "Pocket009")
body.addObject(pocket10)
pocket10.Profile = sketch15
pocket10.Type = "ThroughAll"
pocket10.Reversed = True

sketch16 = doc.addObject("Sketcher::SketchObject", "Sketch015")
body.addObject(sketch16)
sketch16.AttachmentSupport = (doc.YZ_Plane, [""])
sketch16.MapMode = "FlatFace"
sketch16.addGeometry(Part.Circle(Vector(-80, -80, 0), Vector(0, 0, 1), 8), False)
sketch16.addConstraint(Sketcher.Constraint("Diameter", 0, 15.0))
sketch16.addConstraint(Sketcher.Constraint("DistanceX", 0, 3, -1, 1, 79.903066))
sketch16.addConstraint(Sketcher.Constraint("DistanceY", 0, 3, -1, 1, 79.903066))
pocket11 = doc.addObject("PartDesign::Pocket", "Pocket010")
body.addObject(pocket11)
pocket11.Profile = sketch16
pocket11.Type = "ThroughAll"
pocket11.Reversed = True

sketch17 = doc.addObject("Sketcher::SketchObject", "Sketch016")
body.addObject(sketch17)
sketch17.AttachmentSupport = (doc.YZ_Plane, [""])
sketch17.MapMode = "FlatFace"
sketch17.addGeometry(Part.Circle(Vector(-29, -109, 0), Vector(0, 0, 1), 8), False)
sketch17.addConstraint(Sketcher.Constraint("Diameter", 0, 15.0))
sketch17.addConstraint(Sketcher.Constraint("DistanceY", 0, 3, -1, 1, 109.149618))
sketch17.addConstraint(Sketcher.Constraint("DistanceX", 0, 3, -1, 1, 29.246552))
pocket12 = doc.addObject("PartDesign::Pocket", "Pocket011")
body.addObject(pocket12)
pocket12.Profile = sketch17
pocket12.Type = "ThroughAll"
pocket12.Reversed = True

sketch18 = doc.addObject("Sketcher::SketchObject", "Sketch017")
body.addObject(sketch18)
sketch18.AttachmentSupport = (doc.YZ_Plane, [""])
sketch18.MapMode = "FlatFace"
sketch18.addGeometry(Part.Circle(Vector(-84, 0, 0), Vector(0, 0, 1), 6), False)
sketch18.addConstraint(Sketcher.Constraint("PointOnObject", 0, 3, -1))
sketch18.addConstraint(Sketcher.Constraint("Diameter", 0, 12.0))
sketch18.addConstraint(Sketcher.Constraint("DistanceX", 0, 3, -1, 1, 84.0))
pocket13 = doc.addObject("PartDesign::Pocket", "Pocket012")
body.addObject(pocket13)
pocket13.Profile = sketch18
pocket13.Type = "ThroughAll"
pocket13.Reversed = True

sketch19 = doc.addObject("Sketcher::SketchObject", "Sketch018")
body.addObject(sketch19)
sketch19.AttachmentSupport = (doc.XY_Plane, [""])
sketch19.MapMode = "FlatFace"
sketch19.addGeometry(Part.LineSegment(Vector(-1, 40, 0), Vector(25, 40, 0)), False)
sketch19.addGeometry(Part.ArcOfCircle(Part.Circle(Vector(25, 74, 0), Vector(0, 0, 1), 35), math.radians(-90), math.radians(0)), False)
sketch19.addGeometry(Part.LineSegment(Vector(60, 74, 0), Vector(60, 150, 0)), False)
sketch19.addGeometry(Part.LineSegment(Vector(60, 150, 0), Vector(-1, 150, 0)), False)
sketch19.addGeometry(Part.LineSegment(Vector(-1, 150, 0), Vector(-1, 40, 0)), False)
sketch19.addConstraint(Sketcher.Constraint("Tangent", 0, 2, 1, 1))
sketch19.addConstraint(Sketcher.Constraint("Tangent", 1, 2, 2, 1))
sketch19.addConstraint(Sketcher.Constraint("Coincident", 2, 2, 3, 1))
sketch19.addConstraint(Sketcher.Constraint("Coincident", 3, 2, 4, 1))
sketch19.addConstraint(Sketcher.Constraint("Coincident", 4, 2, 0, 1))
sketch19.addConstraint(Sketcher.Constraint("Horizontal", 0))
sketch19.addConstraint(Sketcher.Constraint("Vertical", 2))
sketch19.addConstraint(Sketcher.Constraint("Horizontal", 3))
sketch19.addConstraint(Sketcher.Constraint("Vertical", 4))
sketch19.addConstraint(Sketcher.Constraint("Radius", 1, 35.0))
sketch19.addConstraint(Sketcher.Constraint("DistanceX", 0, 1, 0, 2, 26.0))
sketch19.addConstraint(Sketcher.Constraint("DistanceY", 2, 1, 2, 2, 75.5))
sketch19.addConstraint(Sketcher.Constraint("DistanceX", -1, 1, 1, 3, 25.0))
sketch19.addConstraint(Sketcher.Constraint("DistanceY", -1, 1, 2, 2, 150.0))
pocket14 = doc.addObject("PartDesign::Pocket", "Pocket013")
body.addObject(pocket14)
pocket14.Profile = sketch19
pocket14.Type = "ThroughAll"
pocket14.Midplane = True

sketch20 = doc.addObject("Sketcher::SketchObject", "Sketch019")
body.addObject(sketch20)
sketch20.AttachmentSupport = (doc.XY_Plane, [""])
sketch20.MapMode = "FlatFace"
sketch20.addGeometry(Part.LineSegment(Vector(-1, -25, 0), Vector(-1, -100, 0)), False)
sketch20.addGeometry(Part.LineSegment(Vector(-1, -100, 0), Vector(3, -100, 0)), False)
sketch20.addGeometry(Part.LineSegment(Vector(3, -100, 0), Vector(3, -25, 0)), False)
sketch20.addGeometry(Part.LineSegment(Vector(3, -25, 0), Vector(-1, -25, 0)), False)
sketch20.addConstraint(Sketcher.Constraint("Coincident", 0, 2, 1, 1))
sketch20.addConstraint(Sketcher.Constraint("Coincident", 1, 2, 2, 1))
sketch20.addConstraint(Sketcher.Constraint("Coincident", 2, 2, 3, 1))
sketch20.addConstraint(Sketcher.Constraint("Coincident", 3, 2, 0, 1))
sketch20.addConstraint(Sketcher.Constraint("Vertical", 0))
sketch20.addConstraint(Sketcher.Constraint("Horizontal", 1))
sketch20.addConstraint(Sketcher.Constraint("Vertical", 2))
sketch20.addConstraint(Sketcher.Constraint("Horizontal", 3))
sketch20.addConstraint(Sketcher.Constraint("DistanceX", 1, 1, 1, 2, 4.0))
sketch20.addConstraint(Sketcher.Constraint("DistanceY", 0, 2, 0, 1, 75.0))
sketch20.addConstraint(Sketcher.Constraint("DistanceX", 0, 2, -1, 1, 1.0))
sketch20.addConstraint(Sketcher.Constraint("DistanceY", 0, 2, -1, 1, 100.0))
pocket15 = doc.addObject("PartDesign::Pocket", "Pocket014")
body.addObject(pocket15)
pocket15.Profile = sketch20
pocket15.Type = "ThroughAll"
pocket15.Midplane = True

doc.recompute()
